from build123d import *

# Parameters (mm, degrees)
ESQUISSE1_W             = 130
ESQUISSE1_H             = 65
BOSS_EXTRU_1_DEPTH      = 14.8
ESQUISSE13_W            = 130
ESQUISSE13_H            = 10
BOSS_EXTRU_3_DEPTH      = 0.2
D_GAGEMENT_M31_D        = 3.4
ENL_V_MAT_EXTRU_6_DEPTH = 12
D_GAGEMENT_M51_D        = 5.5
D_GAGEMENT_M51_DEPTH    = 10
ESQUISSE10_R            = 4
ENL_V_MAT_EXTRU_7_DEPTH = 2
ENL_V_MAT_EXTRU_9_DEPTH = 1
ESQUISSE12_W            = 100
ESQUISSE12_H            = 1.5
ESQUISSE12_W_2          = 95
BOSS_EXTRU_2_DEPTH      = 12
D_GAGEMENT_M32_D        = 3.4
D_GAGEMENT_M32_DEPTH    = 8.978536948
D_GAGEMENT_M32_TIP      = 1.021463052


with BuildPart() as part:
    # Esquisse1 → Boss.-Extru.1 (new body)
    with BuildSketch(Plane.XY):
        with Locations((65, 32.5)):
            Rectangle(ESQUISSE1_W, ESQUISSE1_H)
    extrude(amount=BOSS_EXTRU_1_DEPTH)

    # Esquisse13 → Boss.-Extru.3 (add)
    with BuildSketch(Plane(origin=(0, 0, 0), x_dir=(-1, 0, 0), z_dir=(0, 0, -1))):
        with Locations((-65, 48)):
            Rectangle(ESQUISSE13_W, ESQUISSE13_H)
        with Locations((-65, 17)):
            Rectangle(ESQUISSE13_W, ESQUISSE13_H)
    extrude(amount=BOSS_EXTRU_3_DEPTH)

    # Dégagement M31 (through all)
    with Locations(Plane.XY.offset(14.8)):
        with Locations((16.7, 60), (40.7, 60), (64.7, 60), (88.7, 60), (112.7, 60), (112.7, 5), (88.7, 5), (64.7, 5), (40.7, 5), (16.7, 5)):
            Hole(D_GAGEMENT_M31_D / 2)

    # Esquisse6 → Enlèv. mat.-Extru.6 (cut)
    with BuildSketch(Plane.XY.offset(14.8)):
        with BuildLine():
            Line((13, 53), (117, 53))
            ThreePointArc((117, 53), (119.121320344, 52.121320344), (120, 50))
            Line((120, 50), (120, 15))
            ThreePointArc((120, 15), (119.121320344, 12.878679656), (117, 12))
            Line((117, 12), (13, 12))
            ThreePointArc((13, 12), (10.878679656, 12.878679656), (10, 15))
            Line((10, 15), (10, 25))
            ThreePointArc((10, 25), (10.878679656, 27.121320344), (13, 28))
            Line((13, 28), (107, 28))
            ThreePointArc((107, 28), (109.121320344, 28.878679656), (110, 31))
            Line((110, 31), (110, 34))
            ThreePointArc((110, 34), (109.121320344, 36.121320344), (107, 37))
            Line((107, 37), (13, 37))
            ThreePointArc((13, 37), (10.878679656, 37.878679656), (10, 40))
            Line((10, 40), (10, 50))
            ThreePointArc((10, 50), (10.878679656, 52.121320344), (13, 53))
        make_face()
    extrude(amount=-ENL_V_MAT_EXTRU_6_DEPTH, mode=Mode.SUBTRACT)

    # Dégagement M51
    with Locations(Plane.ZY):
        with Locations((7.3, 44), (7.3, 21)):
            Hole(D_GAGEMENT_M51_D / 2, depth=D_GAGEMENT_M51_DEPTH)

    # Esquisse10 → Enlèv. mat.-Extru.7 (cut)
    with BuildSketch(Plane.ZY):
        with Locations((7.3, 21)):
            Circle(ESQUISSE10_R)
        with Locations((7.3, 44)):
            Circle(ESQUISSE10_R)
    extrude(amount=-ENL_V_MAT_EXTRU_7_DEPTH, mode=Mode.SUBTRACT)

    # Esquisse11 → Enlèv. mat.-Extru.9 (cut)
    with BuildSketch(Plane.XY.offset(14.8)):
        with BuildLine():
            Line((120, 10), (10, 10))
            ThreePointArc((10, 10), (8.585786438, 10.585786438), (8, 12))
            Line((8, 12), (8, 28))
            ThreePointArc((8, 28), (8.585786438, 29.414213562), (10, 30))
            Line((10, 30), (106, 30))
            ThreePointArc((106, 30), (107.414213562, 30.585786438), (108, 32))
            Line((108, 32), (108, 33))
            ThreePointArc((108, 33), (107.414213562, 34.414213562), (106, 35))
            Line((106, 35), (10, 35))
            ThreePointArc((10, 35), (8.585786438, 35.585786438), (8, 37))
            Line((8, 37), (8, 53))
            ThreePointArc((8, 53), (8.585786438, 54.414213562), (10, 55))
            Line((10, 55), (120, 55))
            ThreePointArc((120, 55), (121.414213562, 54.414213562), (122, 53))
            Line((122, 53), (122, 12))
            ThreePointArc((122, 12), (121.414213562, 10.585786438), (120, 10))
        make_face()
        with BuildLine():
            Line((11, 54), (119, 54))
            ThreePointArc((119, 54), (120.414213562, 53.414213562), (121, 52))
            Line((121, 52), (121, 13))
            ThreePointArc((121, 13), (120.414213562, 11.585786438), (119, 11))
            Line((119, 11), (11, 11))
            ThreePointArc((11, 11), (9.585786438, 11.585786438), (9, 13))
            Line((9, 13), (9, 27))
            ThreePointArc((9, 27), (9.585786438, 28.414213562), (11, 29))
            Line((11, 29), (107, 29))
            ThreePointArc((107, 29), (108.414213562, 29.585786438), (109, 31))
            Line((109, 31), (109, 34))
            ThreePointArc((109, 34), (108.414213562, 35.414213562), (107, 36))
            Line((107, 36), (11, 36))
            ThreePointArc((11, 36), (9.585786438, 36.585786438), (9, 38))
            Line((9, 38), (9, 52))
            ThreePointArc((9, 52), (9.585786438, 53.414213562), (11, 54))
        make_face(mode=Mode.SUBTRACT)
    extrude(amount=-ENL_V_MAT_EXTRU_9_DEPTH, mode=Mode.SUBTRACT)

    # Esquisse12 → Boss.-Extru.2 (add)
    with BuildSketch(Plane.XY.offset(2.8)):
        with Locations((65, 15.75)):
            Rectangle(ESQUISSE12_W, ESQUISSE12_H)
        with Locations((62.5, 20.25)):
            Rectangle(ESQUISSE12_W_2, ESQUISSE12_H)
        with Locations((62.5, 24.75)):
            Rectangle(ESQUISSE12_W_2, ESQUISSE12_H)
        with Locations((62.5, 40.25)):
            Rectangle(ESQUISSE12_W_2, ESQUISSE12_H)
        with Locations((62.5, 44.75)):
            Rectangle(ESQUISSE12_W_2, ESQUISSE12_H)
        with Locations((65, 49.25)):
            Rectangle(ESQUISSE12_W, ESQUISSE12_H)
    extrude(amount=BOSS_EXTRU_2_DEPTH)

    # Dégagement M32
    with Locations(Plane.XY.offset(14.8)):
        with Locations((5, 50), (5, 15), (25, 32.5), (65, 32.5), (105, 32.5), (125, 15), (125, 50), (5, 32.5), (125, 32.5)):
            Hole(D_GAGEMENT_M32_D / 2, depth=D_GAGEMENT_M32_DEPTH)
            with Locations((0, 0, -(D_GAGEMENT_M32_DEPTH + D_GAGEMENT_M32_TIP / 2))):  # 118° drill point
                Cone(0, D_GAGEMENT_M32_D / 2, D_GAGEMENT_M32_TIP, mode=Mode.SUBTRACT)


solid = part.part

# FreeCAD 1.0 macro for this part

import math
import FreeCAD as App
import Part
import Sketcher

doc = App.newDocument("Part")
body = doc.addObject("PartDesign::Body", "Body")

sketch1 = body.newObject("Sketcher::SketchObject", "Sketch")
sketch1.AttachmentSupport = (doc.getObject("XY_Plane"), [""])
sketch1.MapMode = "FlatFace"
sketch1.addGeometry([
    Part.LineSegment(App.Vector(0, 65, 0), App.Vector(0, 0, 0)),
    Part.LineSegment(App.Vector(0, 0, 0), App.Vector(130, 0, 0)),
    Part.LineSegment(App.Vector(130, 0, 0), App.Vector(130, 65, 0)),
    Part.LineSegment(App.Vector(130, 65, 0), App.Vector(0, 65, 0)),
], False)
sketch1.addConstraint([
    Sketcher.Constraint("Coincident", 0, 2, 1, 1),
    Sketcher.Constraint("Coincident", 1, 2, 2, 1),
    Sketcher.Constraint("Coincident", 2, 2, 3, 1),
    Sketcher.Constraint("Coincident", 3, 2, 0, 1),
    Sketcher.Constraint("Vertical", 0),
    Sketcher.Constraint("Horizontal", 1),
    Sketcher.Constraint("Vertical", 2),
    Sketcher.Constraint("Horizontal", 3),
    Sketcher.Constraint("Coincident", 0, 2, -1, 1),
    Sketcher.Constraint("DistanceX", 1, 1, 1, 2, 130.0),
    Sketcher.Constraint("DistanceY", 0, 2, 0, 1, 65.0),
])
pad1 = body.newObject("PartDesign::Pad", "Pad")
pad1.Profile = sketch1
pad1.Length = 14.8

sketch2 = body.newObject("Sketcher::SketchObject", "Sketch001")
sketch2.AttachmentSupport = (doc.getObject("XY_Plane"), [""])
sketch2.MapMode = "FlatFace"
sketch2.addGeometry([
    Part.LineSegment(App.Vector(130, 53, 0), App.Vector(130, 43, 0)),
    Part.LineSegment(App.Vector(130, 43, 0), App.Vector(0, 43, 0)),
    Part.LineSegment(App.Vector(0, 43, 0), App.Vector(0, 53, 0)),
    Part.LineSegment(App.Vector(0, 53, 0), App.Vector(130, 53, 0)),
    Part.LineSegment(App.Vector(130, 22, 0), App.Vector(130, 12, 0)),
    Part.LineSegment(App.Vector(130, 12, 0), App.Vector(0, 12, 0)),
    Part.LineSegment(App.Vector(0, 12, 0), App.Vector(0, 22, 0)),
    Part.LineSegment(App.Vector(0, 22, 0), App.Vector(130, 22, 0)),
], False)
sketch2.addConstraint([
    Sketcher.Constraint("Coincident", 0, 2, 1, 1),
    Sketcher.Constraint("Coincident", 1, 2, 2, 1),
    Sketcher.Constraint("Coincident", 2, 2, 3, 1),
    Sketcher.Constraint("Coincident", 3, 2, 0, 1),
    Sketcher.Constraint("Coincident", 4, 2, 5, 1),
    Sketcher.Constraint("Coincident", 5, 2, 6, 1),
    Sketcher.Constraint("Coincident", 6, 2, 7, 1),
    Sketcher.Constraint("Coincident", 7, 2, 4, 1),
    Sketcher.Constraint("Vertical", 0),
    Sketcher.Constraint("Horizontal", 1),
    Sketcher.Constraint("Vertical", 2),
    Sketcher.Constraint("Horizontal", 3),
    Sketcher.Constraint("Vertical", 4),
    Sketcher.Constraint("Horizontal", 5),
    Sketcher.Constraint("Vertical", 6),
    Sketcher.Constraint("Horizontal", 7),
    Sketcher.Constraint("PointOnObject", 1, 2, -2),
    Sketcher.Constraint("PointOnObject", 5, 2, -2),
    Sketcher.Constraint("Vertical", 3, 2, 4, 2),
    Sketcher.Constraint("Equal", 2, 4),
    Sketcher.Constraint("DistanceX", 1, 2, 1, 1, 130.0),
    Sketcher.Constraint("DistanceY", 0, 2, 0, 1, 10.0),
    Sketcher.Constraint("DistanceY", -1, 1, 0, 2, 43.0),
    Sketcher.Constraint("DistanceY", -1, 1, 4, 2, 12.0),
])
pad2 = body.newObject("PartDesign::Pad", "Pad001")
pad2.Profile = sketch2
pad2.Length = 0.2
pad2.Reversed = True

sketch3 = body.newObject("Sketcher::SketchObject", "Sketch002")
sketch3.AttachmentSupport = (doc.getObject("XY_Plane"), [""])
sketch3.MapMode = "FlatFace"
sketch3.AttachmentOffset = App.Placement(App.Vector(0, 0, 14.8), App.Rotation())
sketch3.addGeometry([
    Part.Circle(App.Vector(16.7, 60, 0), App.Vector(0, 0, 1), 1.7),
    Part.Circle(App.Vector(40.7, 60, 0), App.Vector(0, 0, 1), 1.7),
    Part.Circle(App.Vector(64.7, 60, 0), App.Vector(0, 0, 1), 1.7),
    Part.Circle(App.Vector(88.7, 60, 0), App.Vector(0, 0, 1), 1.7),
    Part.Circle(App.Vector(112.7, 60, 0), App.Vector(0, 0, 1), 1.7),
    Part.Circle(App.Vector(112.7, 5, 0), App.Vector(0, 0, 1), 1.7),
    Part.Circle(App.Vector(88.7, 5, 0), App.Vector(0, 0, 1), 1.7),
    Part.Circle(App.Vector(64.7, 5, 0), App.Vector(0, 0, 1), 1.7),
    Part.Circle(App.Vector(40.7, 5, 0), App.Vector(0, 0, 1), 1.7),
    Part.Circle(App.Vector(16.7, 5, 0), App.Vector(0, 0, 1), 1.7),
], False)
sketch3.addConstraint([
    Sketcher.Constraint("Equal", 0, 1),
    Sketcher.Constraint("Equal", 1, 2),
    Sketcher.Constraint("Equal", 2, 3),
    Sketcher.Constraint("Equal", 3, 4),
    Sketcher.Constraint("Equal", 4, 5),
    Sketcher.Constraint("Equal", 5, 6),
    Sketcher.Constraint("Equal", 6, 7),
    Sketcher.Constraint("Equal", 7, 8),
    Sketcher.Constraint("Equal", 8, 9),
    Sketcher.Constraint("Horizontal", 0, 3, 1, 3),
    Sketcher.Constraint("Horizontal", 1, 3, 2, 3),
    Sketcher.Constraint("Horizontal", 2, 3, 3, 3),
    Sketcher.Constraint("Horizontal", 3, 3, 4, 3),
    Sketcher.Constraint("Horizontal", 5, 3, 6, 3),
    Sketcher.Constraint("Horizontal", 6, 3, 7, 3),
    Sketcher.Constraint("Horizontal", 7, 3, 8, 3),
    Sketcher.Constraint("Horizontal", 8, 3, 9, 3),
    Sketcher.Constraint("Vertical", 4, 3, 5, 3),
    Sketcher.Constraint("Vertical", 3, 3, 6, 3),
    Sketcher.Constraint("Vertical", 2, 3, 7, 3),
    Sketcher.Constraint("Vertical", 1, 3, 8, 3),
    Sketcher.Constraint("Vertical", 0, 3, 9, 3),
    Sketcher.Constraint("Diameter", 0, 3.4),
    Sketcher.Constraint("DistanceY", -1, 1, 0, 3, 60.0),
    Sketcher.Constraint("DistanceY", -1, 1, 5, 3, 5.0),
    Sketcher.Constraint("DistanceX", 0, 3, 1, 3, 24.0),
    Sketcher.Constraint("DistanceX", 1, 3, 2, 3, 24.0),
    Sketcher.Constraint("DistanceX", 2, 3, 3, 3, 24.0),
    Sketcher.Constraint("DistanceX", 3, 3, 4, 3, 24.0),
    Sketcher.Constraint("DistanceX", -1, 1, 0, 3, 16.7),
])
doc.recompute()
hole = body.newObject("PartDesign::Hole", "Hole")
hole.Profile = sketch3
hole.ThreadType = "None"
hole.Diameter = 3.4
hole.DepthType = "ThroughAll"

sketch4 = body.newObject("Sketcher::SketchObject", "Sketch003")
sketch4.AttachmentSupport = (doc.getObject("XY_Plane"), [""])
sketch4.MapMode = "FlatFace"
sketch4.AttachmentOffset = App.Placement(App.Vector(0, 0, 14.8), App.Rotation())
sketch4.addGeometry([
    Part.LineSegment(App.Vector(117, 53, 0), App.Vector(13, 53, 0)),
    Part.ArcOfCircle(Part.Circle(App.Vector(13, 50, 0), App.Vector(0, 0, 1), 3), math.radians(90), math.radians(180)),
    Part.LineSegment(App.Vector(10, 50, 0), App.Vector(10, 40, 0)),
    Part.ArcOfCircle(Part.Circle(App.Vector(13, 40, 0), App.Vector(0, 0, 1), 3), math.radians(180), math.radians(270)),
    Part.LineSegment(App.Vector(13, 37, 0), App.Vector(107, 37, 0)),
    Part.ArcOfCircle(Part.Circle(App.Vector(107, 34, 0), App.Vector(0, 0, 1), 3), math.radians(0), math.radians(90)),
    Part.LineSegment(App.Vector(110, 34, 0), App.Vector(110, 31, 0)),
    Part.ArcOfCircle(Part.Circle(App.Vector(107, 31, 0), App.Vector(0, 0, 1), 3), math.radians(-90), math.radians(0)),
    Part.LineSegment(App.Vector(107, 28, 0), App.Vector(13, 28, 0)),
    Part.ArcOfCircle(Part.Circle(App.Vector(13, 25, 0), App.Vector(0, 0, 1), 3), math.radians(90), math.radians(180)),
    Part.LineSegment(App.Vector(10, 25, 0), App.Vector(10, 15, 0)),
    Part.ArcOfCircle(Part.Circle(App.Vector(13, 15, 0), App.Vector(0, 0, 1), 3), math.radians(180), math.radians(270)),
    Part.LineSegment(App.Vector(13, 12, 0), App.Vector(117, 12, 0)),
    Part.ArcOfCircle(Part.Circle(App.Vector(117, 15, 0), App.Vector(0, 0, 1), 3), math.radians(-90), math.radians(0)),
    Part.LineSegment(App.Vector(120, 15, 0), App.Vector(120, 50, 0)),
    Part.ArcOfCircle(Part.Circle(App.Vector(117, 50, 0), App.Vector(0, 0, 1), 3), math.radians(0), math.radians(90)),
], False)
sketch4.addConstraint([
    Sketcher.Constraint("Tangent", 0, 2, 1, 1),
    Sketcher.Constraint("Tangent", 1, 2, 2, 1),
    Sketcher.Constraint("Tangent", 2, 2, 3, 1),
    Sketcher.Constraint("Tangent", 3, 2, 4, 1),
    Sketcher.Constraint("Tangent", 4, 2, 5, 2),
    Sketcher.Constraint("Tangent", 5, 1, 6, 1),
    Sketcher.Constraint("Tangent", 6, 2, 7, 2),
    Sketcher.Constraint("Tangent", 7, 1, 8, 1),
    Sketcher.Constraint("Tangent", 8, 2, 9, 1),
    Sketcher.Constraint("Tangent", 9, 2, 10, 1),
    Sketcher.Constraint("Tangent", 10, 2, 11, 1),
    Sketcher.Constraint("Tangent", 11, 2, 12, 1),
    Sketcher.Constraint("Tangent", 12, 2, 13, 1),
    Sketcher.Constraint("Tangent", 13, 2, 14, 1),
    Sketcher.Constraint("Tangent", 14, 2, 15, 1),
    Sketcher.Constraint("Tangent", 15, 2, 0, 1),
    Sketcher.Constraint("Horizontal", 0),
    Sketcher.Constraint("Vertical", 2),
    Sketcher.Constraint("Horizontal", 4),
    Sketcher.Constraint("Vertical", 6),
    Sketcher.Constraint("Horizontal", 8),
    Sketcher.Constraint("Vertical", 10),
    Sketcher.Constraint("Horizontal", 12),
    Sketcher.Constraint("Vertical", 14),
    Sketcher.Constraint("Equal", 1, 3),
    Sketcher.Constraint("Equal", 3, 5),
    Sketcher.Constraint("Equal", 5, 7),
    Sketcher.Constraint("Equal", 7, 9),
    Sketcher.Constraint("Equal", 9, 11),
    Sketcher.Constraint("Equal", 11, 13),
    Sketcher.Constraint("Equal", 13, 15),
    Sketcher.Constraint("Vertical", 3, 3, 9, 3),
    Sketcher.Constraint("Equal", 2, 10),
    Sketcher.Constraint("Radius", 1, 3.0),
    Sketcher.Constraint("DistanceX", 0, 2, 0, 1, 104.0),
    Sketcher.Constraint("DistanceX", 4, 1, 4, 2, 94.0),
    Sketcher.Constraint("DistanceY", 2, 2, 2, 1, 10.0),
    Sketcher.Constraint("DistanceY", 6, 2, 6, 1, 3.0),
    Sketcher.Constraint("DistanceX", -1, 1, 1, 3, 13.0),
    Sketcher.Constraint("DistanceY", -1, 1, 1, 3, 50.0),
])
pocket1 = body.newObject("PartDesign::Pocket", "Pocket")
pocket1.Profile = sketch4
pocket1.Length = 12

sketch5 = body.newObject("Sketcher::SketchObject", "Sketch004")
sketch5.AttachmentSupport = (doc.getObject("YZ_Plane"), [""])
sketch5.MapMode = "FlatFace"
sketch5.addGeometry([
    Part.Circle(App.Vector(44, 7.3, 0), App.Vector(0, 0, 1), 2.8),
    Part.Circle(App.Vector(21, 7.3, 0), App.Vector(0, 0, 1), 2.8),
], False)
sketch5.addConstraint([
    Sketcher.Constraint("Equal", 0, 1),
    Sketcher.Constraint("Horizontal", 0, 3, 1, 3),
    Sketcher.Constraint("Diameter", 0, 5.5),
    Sketcher.Constraint("DistanceX", -1, 1, 0, 3, 44.0),
    Sketcher.Constraint("DistanceX", -1, 1, 1, 3, 21.0),
    Sketcher.Constraint("DistanceY", -1, 1, 0, 3, 7.3),
])
doc.recompute()
hole2 = body.newObject("PartDesign::Hole", "Hole001")
hole2.Profile = sketch5
hole2.ThreadType = "None"
hole2.Diameter = 5.5
hole2.DepthType = "Dimension"
hole2.Depth = 10
hole2.DrillPoint = "Flat"
hole2.Reversed = True

sketch6 = body.newObject("Sketcher::SketchObject", "Sketch005")
sketch6.AttachmentSupport = (doc.getObject("YZ_Plane"), [""])
sketch6.MapMode = "FlatFace"
sketch6.addGeometry([
    Part.Circle(App.Vector(21, 7.3, 0), App.Vector(0, 0, 1), 4),
    Part.Circle(App.Vector(44, 7.3, 0), App.Vector(0, 0, 1), 4),
], False)
sketch6.addConstraint([
    Sketcher.Constraint("Equal", 0, 1),
    Sketcher.Constraint("Horizontal", 0, 3, 1, 3),
    Sketcher.Constraint("Diameter", 0, 8.0),
    Sketcher.Constraint("DistanceX", -1, 1, 0, 3, 21.0),
    Sketcher.Constraint("DistanceX", -1, 1, 1, 3, 44.0),
    Sketcher.Constraint("DistanceY", -1, 1, 0, 3, 7.3),
])
pocket2 = body.newObject("PartDesign::Pocket", "Pocket001")
pocket2.Profile = sketch6
pocket2.Length = 2
pocket2.Reversed = True

sketch7 = body.newObject("Sketcher::SketchObject", "Sketch006")
sketch7.AttachmentSupport = (doc.getObject("XY_Plane"), [""])
sketch7.MapMode = "FlatFace"
sketch7.AttachmentOffset = App.Placement(App.Vector(0, 0, 14.8), App.Rotation())
sketch7.addGeometry([
    Part.LineSegment(App.Vector(10, 10, 0), App.Vector(120, 10, 0)),
    Part.ArcOfCircle(Part.Circle(App.Vector(120, 12, 0), App.Vector(0, 0, 1), 2), math.radians(-90), math.radians(0)),
    Part.LineSegment(App.Vector(122, 12, 0), App.Vector(122, 53, 0)),
    Part.ArcOfCircle(Part.Circle(App.Vector(120, 53, 0), App.Vector(0, 0, 1), 2), math.radians(0), math.radians(90)),
    Part.LineSegment(App.Vector(120, 55, 0), App.Vector(10, 55, 0)),
    Part.ArcOfCircle(Part.Circle(App.Vector(10, 53, 0), App.Vector(0, 0, 1), 2), math.radians(90), math.radians(180)),
    Part.LineSegment(App.Vector(8, 53, 0), App.Vector(8, 37, 0)),
    Part.ArcOfCircle(Part.Circle(App.Vector(10, 37, 0), App.Vector(0, 0, 1), 2), math.radians(-180), math.radians(-90)),
    Part.LineSegment(App.Vector(10, 35, 0), App.Vector(106, 35, 0)),
    Part.ArcOfCircle(Part.Circle(App.Vector(106, 33, 0), App.Vector(0, 0, 1), 2), math.radians(0), math.radians(90)),
    Part.LineSegment(App.Vector(108, 33, 0), App.Vector(108, 32, 0)),
    Part.ArcOfCircle(Part.Circle(App.Vector(106, 32, 0), App.Vector(0, 0, 1), 2), math.radians(-90), math.radians(0)),
    Part.LineSegment(App.Vector(106, 30, 0), App.Vector(10, 30, 0)),
    Part.ArcOfCircle(Part.Circle(App.Vector(10, 28, 0), App.Vector(0, 0, 1), 2), math.radians(90), math.radians(180)),
    Part.LineSegment(App.Vector(8, 28, 0), App.Vector(8, 12, 0)),
    Part.ArcOfCircle(Part.Circle(App.Vector(10, 12, 0), App.Vector(0, 0, 1), 2), math.radians(-180), math.radians(-90)),
    Part.LineSegment(App.Vector(11, 54, 0), App.Vector(119, 54, 0)),
    Part.ArcOfCircle(Part.Circle(App.Vector(119, 52, 0), App.Vector(0, 0, 1), 2), math.radians(0), math.radians(90)),
    Part.LineSegment(App.Vector(121, 52, 0), App.Vector(121, 13, 0)),
    Part.ArcOfCircle(Part.Circle(App.Vector(119, 13, 0), App.Vector(0, 0, 1), 2), math.radians(-90), math.radians(0)),
    Part.LineSegment(App.Vector(119, 11, 0), App.Vector(11, 11, 0)),
    Part.ArcOfCircle(Part.Circle(App.Vector(11, 13, 0), App.Vector(0, 0, 1), 2), math.radians(-180), math.radians(-90)),
    Part.LineSegment(App.Vector(9, 13, 0), App.Vector(9, 27, 0)),
    Part.ArcOfCircle(Part.Circle(App.Vector(11, 27, 0), App.Vector(0, 0, 1), 2), math.radians(90), math.radians(180)),
    Part.LineSegment(App.Vector(11, 29, 0), App.Vector(107, 29, 0)),
    Part.ArcOfCircle(Part.Circle(App.Vector(107, 31, 0), App.Vector(0, 0, 1), 2), math.radians(-90), math.radians(0)),
    Part.LineSegment(App.Vector(109, 31, 0), App.Vector(109, 34, 0)),
    Part.ArcOfCircle(Part.Circle(App.Vector(107, 34, 0), App.Vector(0, 0, 1), 2), math.radians(0), math.radians(90)),
    Part.LineSegment(App.Vector(107, 36, 0), App.Vector(11, 36, 0)),
    Part.ArcOfCircle(Part.Circle(App.Vector(11, 38, 0), App.Vector(0, 0, 1), 2), math.radians(-180), math.radians(-90)),
    Part.LineSegment(App.Vector(9, 38, 0), App.Vector(9, 52, 0)),
    Part.ArcOfCircle(Part.Circle(App.Vector(11, 52, 0), App.Vector(0, 0, 1), 2), math.radians(90), math.radians(180)),
], False)
sketch7.addConstraint([
    Sketcher.Constraint("Tangent", 0, 2, 1, 1),
    Sketcher.Constraint("Tangent", 1, 2, 2, 1),
    Sketcher.Constraint("Tangent", 2, 2, 3, 1),
    Sketcher.Constraint("Tangent", 3, 2, 4, 1),
    Sketcher.Constraint("Tangent", 4, 2, 5, 1),
    Sketcher.Constraint("Tangent", 5, 2, 6, 1),
    Sketcher.Constraint("Tangent", 6, 2, 7, 1),
    Sketcher.Constraint("Tangent", 7, 2, 8, 1),
    Sketcher.Constraint("Tangent", 8, 2, 9, 2),
    Sketcher.Constraint("Tangent", 9, 1, 10, 1),
    Sketcher.Constraint("Tangent", 10, 2, 11, 2),
    Sketcher.Constraint("Tangent", 11, 1, 12, 1),
    Sketcher.Constraint("Tangent", 12, 2, 13, 1),
    Sketcher.Constraint("Tangent", 13, 2, 14, 1),
    Sketcher.Constraint("Tangent", 14, 2, 15, 1),
    Sketcher.Constraint("Tangent", 15, 2, 0, 1),
    Sketcher.Constraint("Tangent", 16, 2, 17, 2),
    Sketcher.Constraint("Tangent", 17, 1, 18, 1),
    Sketcher.Constraint("Tangent", 18, 2, 19, 2),
    Sketcher.Constraint("Tangent", 19, 1, 20, 1),
    Sketcher.Constraint("Tangent", 20, 2, 21, 2),
    Sketcher.Constraint("Tangent", 21, 1, 22, 1),
    Sketcher.Constraint("Tangent", 22, 2, 23, 2),
    Sketcher.Constraint("Tangent", 23, 1, 24, 1),
    Sketcher.Constraint("Tangent", 24, 2, 25, 1),
    Sketcher.Constraint("Tangent", 25, 2, 26, 1),
    Sketcher.Constraint("Tangent", 26, 2, 27, 1),
    Sketcher.Constraint("Tangent", 27, 2, 28, 1),
    Sketcher.Constraint("Tangent", 28, 2, 29, 2),
    Sketcher.Constraint("Tangent", 29, 1, 30, 1),
    Sketcher.Constraint("Tangent", 30, 2, 31, 2),
    Sketcher.Constraint("Tangent", 31, 1, 16, 1),
    Sketcher.Constraint("Horizontal", 0),
    Sketcher.Constraint("Vertical", 2),
    Sketcher.Constraint("Horizontal", 4),
    Sketcher.Constraint("Vertical", 6),
    Sketcher.Constraint("Horizontal", 8),
    Sketcher.Constraint("Vertical", 10),
    Sketcher.Constraint("Horizontal", 12),
    Sketcher.Constraint("Vertical", 14),
    Sketcher.Constraint("Horizontal", 16),
    Sketcher.Constraint("Vertical", 18),
    Sketcher.Constraint("Horizontal", 20),
    Sketcher.Constraint("Vertical", 22),
    Sketcher.Constraint("Horizontal", 24),
    Sketcher.Constraint("Vertical", 26),
    Sketcher.Constraint("Horizontal", 28),
    Sketcher.Constraint("Vertical", 30),
    Sketcher.Constraint("Equal", 1, 3),
    Sketcher.Constraint("Equal", 3, 5),
    Sketcher.Constraint("Equal", 5, 7),
    Sketcher.Constraint("Equal", 7, 9),
    Sketcher.Constraint("Equal", 9, 11),
    Sketcher.Constraint("Equal", 11, 13),
    Sketcher.Constraint("Equal", 13, 15),
    Sketcher.Constraint("Equal", 15, 17),
    Sketcher.Constraint("Equal", 17, 19),
    Sketcher.Constraint("Equal", 19, 21),
    Sketcher.Constraint("Equal", 21, 23),
    Sketcher.Constraint("Equal", 23, 25),
    Sketcher.Constraint("Equal", 25, 27),
    Sketcher.Constraint("Equal", 27, 29),
    Sketcher.Constraint("Equal", 29, 31),
    Sketcher.Constraint("Vertical", 7, 3, 13, 3),
    Sketcher.Constraint("Vertical", 23, 3, 29, 3),
    Sketcher.Constraint("Equal", 12, 24),
    Sketcher.Constraint("Equal", 6, 14),
    Sketcher.Constraint("Equal", 22, 30),
    Sketcher.Constraint("Radius", 1, 2.0),
    Sketcher.Constraint("DistanceX", 0, 1, 0, 2, 110.0),
    Sketcher.Constraint("DistanceX", 8, 1, 8, 2, 96.0),
    Sketcher.Constraint("DistanceX", 16, 1, 16, 2, 108.0),
    Sketcher.Constraint("DistanceY", 2, 1, 2, 2, 41.0),
    Sketcher.Constraint("DistanceY", 6, 2, 6, 1, 16.0),
    Sketcher.Constraint("DistanceY", 18, 2, 18, 1, 39.0),
    Sketcher.Constraint("DistanceY", 22, 1, 22, 2, 14.0),
    Sketcher.Constraint("DistanceX", -1, 1, 1, 3, 120.0),
    Sketcher.Constraint("DistanceY", -1, 1, 1, 3, 12.0),
    Sketcher.Constraint("DistanceX", -1, 1, 17, 3, 119.0),
    Sketcher.Constraint("DistanceY", -1, 1, 17, 3, 52.0),
])
pocket3 = body.newObject("PartDesign::Pocket", "Pocket002")
pocket3.Profile = sketch7
pocket3.Length = 1

sketch8 = body.newObject("Sketcher::SketchObject", "Sketch007")
sketch8.AttachmentSupport = (doc.getObject("XY_Plane"), [""])
sketch8.MapMode = "FlatFace"
sketch8.AttachmentOffset = App.Placement(App.Vector(0, 0, 2.8), App.Rotation())
sketch8.addGeometry([
    Part.LineSegment(App.Vector(15, 16.5, 0), App.Vector(15, 15, 0)),
    Part.LineSegment(App.Vector(15, 15, 0), App.Vector(115, 15, 0)),
    Part.LineSegment(App.Vector(115, 15, 0), App.Vector(115, 16.5, 0)),
    Part.LineSegment(App.Vector(115, 16.5, 0), App.Vector(15, 16.5, 0)),
    Part.LineSegment(App.Vector(15, 21, 0), App.Vector(15, 19.5, 0)),
    Part.LineSegment(App.Vector(15, 19.5, 0), App.Vector(110, 19.5, 0)),
    Part.LineSegment(App.Vector(110, 19.5, 0), App.Vector(110, 21, 0)),
    Part.LineSegment(App.Vector(110, 21, 0), App.Vector(15, 21, 0)),
    Part.LineSegment(App.Vector(15, 25.5, 0), App.Vector(15, 24, 0)),
    Part.LineSegment(App.Vector(15, 24, 0), App.Vector(110, 24, 0)),
    Part.LineSegment(App.Vector(110, 24, 0), App.Vector(110, 25.5, 0)),
    Part.LineSegment(App.Vector(110, 25.5, 0), App.Vector(15, 25.5, 0)),
    Part.LineSegment(App.Vector(15, 41, 0), App.Vector(15, 39.5, 0)),
    Part.LineSegment(App.Vector(15, 39.5, 0), App.Vector(110, 39.5, 0)),
    Part.LineSegment(App.Vector(110, 39.5, 0), App.Vector(110, 41, 0)),
    Part.LineSegment(App.Vector(110, 41, 0), App.Vector(15, 41, 0)),
    Part.LineSegment(App.Vector(15, 45.5, 0), App.Vector(15, 44, 0)),
    Part.LineSegment(App.Vector(15, 44, 0), App.Vector(110, 44, 0)),
    Part.LineSegment(App.Vector(110, 44, 0), App.Vector(110, 45.5, 0)),
    Part.LineSegment(App.Vector(110, 45.5, 0), App.Vector(15, 45.5, 0)),
    Part.LineSegment(App.Vector(15, 50, 0), App.Vector(15, 48.5, 0)),
    Part.LineSegment(App.Vector(15, 48.5, 0), App.Vector(115, 48.5, 0)),
    Part.LineSegment(App.Vector(115, 48.5, 0), App.Vector(115, 50, 0)),
    Part.LineSegment(App.Vector(115, 50, 0), App.Vector(15, 50, 0)),
], False)
sketch8.addConstraint([
    Sketcher.Constraint("Coincident", 0, 2, 1, 1),
    Sketcher.Constraint("Coincident", 1, 2, 2, 1),
    Sketcher.Constraint("Coincident", 2, 2, 3, 1),
    Sketcher.Constraint("Coincident", 3, 2, 0, 1),
    Sketcher.Constraint("Coincident", 4, 2, 5, 1),
    Sketcher.Constraint("Coincident", 5, 2, 6, 1),
    Sketcher.Constraint("Coincident", 6, 2, 7, 1),
    Sketcher.Constraint("Coincident", 7, 2, 4, 1),
    Sketcher.Constraint("Coincident", 8, 2, 9, 1),
    Sketcher.Constraint("Coincident", 9, 2, 10, 1),
    Sketcher.Constraint("Coincident", 10, 2, 11, 1),
    Sketcher.Constraint("Coincident", 11, 2, 8, 1),
    Sketcher.Constraint("Coincident", 12, 2, 13, 1),
    Sketcher.Constraint("Coincident", 13, 2, 14, 1),
    Sketcher.Constraint("Coincident", 14, 2, 15, 1),
    Sketcher.Constraint("Coincident", 15, 2, 12, 1),
    Sketcher.Constraint("Coincident", 16, 2, 17, 1),
    Sketcher.Constraint("Coincident", 17, 2, 18, 1),
    Sketcher.Constraint("Coincident", 18, 2, 19, 1),
    Sketcher.Constraint("Coincident", 19, 2, 16, 1),
    Sketcher.Constraint("Coincident", 20, 2, 21, 1),
    Sketcher.Constraint("Coincident", 21, 2, 22, 1),
    Sketcher.Constraint("Coincident", 22, 2, 23, 1),
    Sketcher.Constraint("Coincident", 23, 2, 20, 1),
    Sketcher.Constraint("Vertical", 0),
    Sketcher.Constraint("Horizontal", 1),
    Sketcher.Constraint("Vertical", 2),
    Sketcher.Constraint("Horizontal", 3),
    Sketcher.Constraint("Vertical", 4),
    Sketcher.Constraint("Horizontal", 5),
    Sketcher.Constraint("Vertical", 6),
    Sketcher.Constraint("Horizontal", 7),
    Sketcher.Constraint("Vertical", 8),
    Sketcher.Constraint("Horizontal", 9),
    Sketcher.Constraint("Vertical", 10),
    Sketcher.Constraint("Horizontal", 11),
    Sketcher.Constraint("Vertical", 12),
    Sketcher.Constraint("Horizontal", 13),
    Sketcher.Constraint("Vertical", 14),
    Sketcher.Constraint("Horizontal", 15),
    Sketcher.Constraint("Vertical", 16),
    Sketcher.Constraint("Horizontal", 17),
    Sketcher.Constraint("Vertical", 18),
    Sketcher.Constraint("Horizontal", 19),
    Sketcher.Constraint("Vertical", 20),
    Sketcher.Constraint("Horizontal", 21),
    Sketcher.Constraint("Vertical", 22),
    Sketcher.Constraint("Horizontal", 23),
    Sketcher.Constraint("Vertical", 3, 2, 4, 2),
    Sketcher.Constraint("Vertical", 7, 2, 8, 2),
    Sketcher.Constraint("Vertical", 6, 2, 9, 2),
    Sketcher.Constraint("Vertical", 11, 2, 12, 2),
    Sketcher.Constraint("Vertical", 10, 2, 13, 2),
    Sketcher.Constraint("Vertical", 15, 2, 16, 2),
    Sketcher.Constraint("Vertical", 14, 2, 17, 2),
    Sketcher.Constraint("Vertical", 19, 2, 20, 2),
    Sketcher.Constraint("Vertical", 2, 2, 21, 2),
    Sketcher.Constraint("Equal", 2, 4),
    Sketcher.Constraint("Equal", 6, 8),
    Sketcher.Constraint("Equal", 10, 12),
    Sketcher.Constraint("Equal", 14, 16),
    Sketcher.Constraint("Equal", 18, 20),
    Sketcher.Constraint("DistanceX", 1, 1, 1, 2, 100.0),
    Sketcher.Constraint("DistanceX", 5, 1, 5, 2, 95.0),
    Sketcher.Constraint("DistanceY", 0, 2, 0, 1, 1.5),
    Sketcher.Constraint("DistanceX", -1, 1, 0, 2, 15.0),
    Sketcher.Constraint("DistanceY", -1, 1, 0, 2, 15.0),
    Sketcher.Constraint("DistanceY", -1, 1, 6, 2, 21.0),
    Sketcher.Constraint("DistanceY", -1, 1, 8, 2, 24.0),
    Sketcher.Constraint("DistanceY", -1, 1, 14, 2, 41.0),
    Sketcher.Constraint("DistanceY", -1, 1, 16, 2, 44.0),
    Sketcher.Constraint("DistanceY", -1, 1, 22, 2, 50.0),
])
pad3 = body.newObject("PartDesign::Pad", "Pad002")
pad3.Profile = sketch8
pad3.Length = 12

sketch9 = body.newObject("Sketcher::SketchObject", "Sketch008")
sketch9.AttachmentSupport = (doc.getObject("XY_Plane"), [""])
sketch9.MapMode = "FlatFace"
sketch9.AttachmentOffset = App.Placement(App.Vector(0, 0, 14.8), App.Rotation())
sketch9.addGeometry([
    Part.Circle(App.Vector(5, 50, 0), App.Vector(0, 0, 1), 1.7),
    Part.Circle(App.Vector(5, 15, 0), App.Vector(0, 0, 1), 1.7),
    Part.Circle(App.Vector(25, 32.5, 0), App.Vector(0, 0, 1), 1.7),
    Part.Circle(App.Vector(65, 32.5, 0), App.Vector(0, 0, 1), 1.7),
    Part.Circle(App.Vector(105, 32.5, 0), App.Vector(0, 0, 1), 1.7),
    Part.Circle(App.Vector(125, 15, 0), App.Vector(0, 0, 1), 1.7),
    Part.Circle(App.Vector(125, 50, 0), App.Vector(0, 0, 1), 1.7),
    Part.Circle(App.Vector(5, 32.5, 0), App.Vector(0, 0, 1), 1.7),
    Part.Circle(App.Vector(125, 32.5, 0), App.Vector(0, 0, 1), 1.7),
], False)
sketch9.addConstraint([
    Sketcher.Constraint("Equal", 0, 1),
    Sketcher.Constraint("Equal", 1, 2),
    Sketcher.Constraint("Equal", 2, 3),
    Sketcher.Constraint("Equal", 3, 4),
    Sketcher.Constraint("Equal", 4, 5),
    Sketcher.Constraint("Equal", 5, 6),
    Sketcher.Constraint("Equal", 6, 7),
    Sketcher.Constraint("Equal", 7, 8),
    Sketcher.Constraint("Horizontal", 2, 3, 3, 3),
    Sketcher.Constraint("Horizontal", 3, 3, 4, 3),
    Sketcher.Constraint("Horizontal", 1, 3, 5, 3),
    Sketcher.Constraint("Horizontal", 0, 3, 6, 3),
    Sketcher.Constraint("Horizontal", 4, 3, 7, 3),
    Sketcher.Constraint("Horizontal", 7, 3, 8, 3),
    Sketcher.Constraint("Vertical", 0, 3, 1, 3),
    Sketcher.Constraint("Vertical", 5, 3, 6, 3),
    Sketcher.Constraint("Vertical", 1, 3, 7, 3),
    Sketcher.Constraint("Vertical", 6, 3, 8, 3),
    Sketcher.Constraint("Diameter", 0, 3.4),
    Sketcher.Constraint("DistanceX", -1, 1, 0, 3, 5.0),
    Sketcher.Constraint("DistanceY", -1, 1, 0, 3, 50.0),
    Sketcher.Constraint("DistanceY", -1, 1, 1, 3, 15.0),
    Sketcher.Constraint("DistanceX", -1, 1, 2, 3, 25.0),
    Sketcher.Constraint("DistanceX", -1, 1, 3, 3, 65.0),
    Sketcher.Constraint("DistanceX", -1, 1, 4, 3, 105.0),
    Sketcher.Constraint("DistanceX", -1, 1, 5, 3, 125.0),
    Sketcher.Constraint("DistanceY", -1, 1, 2, 3, 32.5),
])
doc.recompute()
hole3 = body.newObject("PartDesign::Hole", "Hole002")
hole3.Profile = sketch9
hole3.ThreadType = "None"
hole3.Diameter = 3.4
hole3.DepthType = "Dimension"
hole3.Depth = 8.978537
hole3.DrillPoint = "Angled"
hole3.DrillPointAngle = 118

doc.recompute()
